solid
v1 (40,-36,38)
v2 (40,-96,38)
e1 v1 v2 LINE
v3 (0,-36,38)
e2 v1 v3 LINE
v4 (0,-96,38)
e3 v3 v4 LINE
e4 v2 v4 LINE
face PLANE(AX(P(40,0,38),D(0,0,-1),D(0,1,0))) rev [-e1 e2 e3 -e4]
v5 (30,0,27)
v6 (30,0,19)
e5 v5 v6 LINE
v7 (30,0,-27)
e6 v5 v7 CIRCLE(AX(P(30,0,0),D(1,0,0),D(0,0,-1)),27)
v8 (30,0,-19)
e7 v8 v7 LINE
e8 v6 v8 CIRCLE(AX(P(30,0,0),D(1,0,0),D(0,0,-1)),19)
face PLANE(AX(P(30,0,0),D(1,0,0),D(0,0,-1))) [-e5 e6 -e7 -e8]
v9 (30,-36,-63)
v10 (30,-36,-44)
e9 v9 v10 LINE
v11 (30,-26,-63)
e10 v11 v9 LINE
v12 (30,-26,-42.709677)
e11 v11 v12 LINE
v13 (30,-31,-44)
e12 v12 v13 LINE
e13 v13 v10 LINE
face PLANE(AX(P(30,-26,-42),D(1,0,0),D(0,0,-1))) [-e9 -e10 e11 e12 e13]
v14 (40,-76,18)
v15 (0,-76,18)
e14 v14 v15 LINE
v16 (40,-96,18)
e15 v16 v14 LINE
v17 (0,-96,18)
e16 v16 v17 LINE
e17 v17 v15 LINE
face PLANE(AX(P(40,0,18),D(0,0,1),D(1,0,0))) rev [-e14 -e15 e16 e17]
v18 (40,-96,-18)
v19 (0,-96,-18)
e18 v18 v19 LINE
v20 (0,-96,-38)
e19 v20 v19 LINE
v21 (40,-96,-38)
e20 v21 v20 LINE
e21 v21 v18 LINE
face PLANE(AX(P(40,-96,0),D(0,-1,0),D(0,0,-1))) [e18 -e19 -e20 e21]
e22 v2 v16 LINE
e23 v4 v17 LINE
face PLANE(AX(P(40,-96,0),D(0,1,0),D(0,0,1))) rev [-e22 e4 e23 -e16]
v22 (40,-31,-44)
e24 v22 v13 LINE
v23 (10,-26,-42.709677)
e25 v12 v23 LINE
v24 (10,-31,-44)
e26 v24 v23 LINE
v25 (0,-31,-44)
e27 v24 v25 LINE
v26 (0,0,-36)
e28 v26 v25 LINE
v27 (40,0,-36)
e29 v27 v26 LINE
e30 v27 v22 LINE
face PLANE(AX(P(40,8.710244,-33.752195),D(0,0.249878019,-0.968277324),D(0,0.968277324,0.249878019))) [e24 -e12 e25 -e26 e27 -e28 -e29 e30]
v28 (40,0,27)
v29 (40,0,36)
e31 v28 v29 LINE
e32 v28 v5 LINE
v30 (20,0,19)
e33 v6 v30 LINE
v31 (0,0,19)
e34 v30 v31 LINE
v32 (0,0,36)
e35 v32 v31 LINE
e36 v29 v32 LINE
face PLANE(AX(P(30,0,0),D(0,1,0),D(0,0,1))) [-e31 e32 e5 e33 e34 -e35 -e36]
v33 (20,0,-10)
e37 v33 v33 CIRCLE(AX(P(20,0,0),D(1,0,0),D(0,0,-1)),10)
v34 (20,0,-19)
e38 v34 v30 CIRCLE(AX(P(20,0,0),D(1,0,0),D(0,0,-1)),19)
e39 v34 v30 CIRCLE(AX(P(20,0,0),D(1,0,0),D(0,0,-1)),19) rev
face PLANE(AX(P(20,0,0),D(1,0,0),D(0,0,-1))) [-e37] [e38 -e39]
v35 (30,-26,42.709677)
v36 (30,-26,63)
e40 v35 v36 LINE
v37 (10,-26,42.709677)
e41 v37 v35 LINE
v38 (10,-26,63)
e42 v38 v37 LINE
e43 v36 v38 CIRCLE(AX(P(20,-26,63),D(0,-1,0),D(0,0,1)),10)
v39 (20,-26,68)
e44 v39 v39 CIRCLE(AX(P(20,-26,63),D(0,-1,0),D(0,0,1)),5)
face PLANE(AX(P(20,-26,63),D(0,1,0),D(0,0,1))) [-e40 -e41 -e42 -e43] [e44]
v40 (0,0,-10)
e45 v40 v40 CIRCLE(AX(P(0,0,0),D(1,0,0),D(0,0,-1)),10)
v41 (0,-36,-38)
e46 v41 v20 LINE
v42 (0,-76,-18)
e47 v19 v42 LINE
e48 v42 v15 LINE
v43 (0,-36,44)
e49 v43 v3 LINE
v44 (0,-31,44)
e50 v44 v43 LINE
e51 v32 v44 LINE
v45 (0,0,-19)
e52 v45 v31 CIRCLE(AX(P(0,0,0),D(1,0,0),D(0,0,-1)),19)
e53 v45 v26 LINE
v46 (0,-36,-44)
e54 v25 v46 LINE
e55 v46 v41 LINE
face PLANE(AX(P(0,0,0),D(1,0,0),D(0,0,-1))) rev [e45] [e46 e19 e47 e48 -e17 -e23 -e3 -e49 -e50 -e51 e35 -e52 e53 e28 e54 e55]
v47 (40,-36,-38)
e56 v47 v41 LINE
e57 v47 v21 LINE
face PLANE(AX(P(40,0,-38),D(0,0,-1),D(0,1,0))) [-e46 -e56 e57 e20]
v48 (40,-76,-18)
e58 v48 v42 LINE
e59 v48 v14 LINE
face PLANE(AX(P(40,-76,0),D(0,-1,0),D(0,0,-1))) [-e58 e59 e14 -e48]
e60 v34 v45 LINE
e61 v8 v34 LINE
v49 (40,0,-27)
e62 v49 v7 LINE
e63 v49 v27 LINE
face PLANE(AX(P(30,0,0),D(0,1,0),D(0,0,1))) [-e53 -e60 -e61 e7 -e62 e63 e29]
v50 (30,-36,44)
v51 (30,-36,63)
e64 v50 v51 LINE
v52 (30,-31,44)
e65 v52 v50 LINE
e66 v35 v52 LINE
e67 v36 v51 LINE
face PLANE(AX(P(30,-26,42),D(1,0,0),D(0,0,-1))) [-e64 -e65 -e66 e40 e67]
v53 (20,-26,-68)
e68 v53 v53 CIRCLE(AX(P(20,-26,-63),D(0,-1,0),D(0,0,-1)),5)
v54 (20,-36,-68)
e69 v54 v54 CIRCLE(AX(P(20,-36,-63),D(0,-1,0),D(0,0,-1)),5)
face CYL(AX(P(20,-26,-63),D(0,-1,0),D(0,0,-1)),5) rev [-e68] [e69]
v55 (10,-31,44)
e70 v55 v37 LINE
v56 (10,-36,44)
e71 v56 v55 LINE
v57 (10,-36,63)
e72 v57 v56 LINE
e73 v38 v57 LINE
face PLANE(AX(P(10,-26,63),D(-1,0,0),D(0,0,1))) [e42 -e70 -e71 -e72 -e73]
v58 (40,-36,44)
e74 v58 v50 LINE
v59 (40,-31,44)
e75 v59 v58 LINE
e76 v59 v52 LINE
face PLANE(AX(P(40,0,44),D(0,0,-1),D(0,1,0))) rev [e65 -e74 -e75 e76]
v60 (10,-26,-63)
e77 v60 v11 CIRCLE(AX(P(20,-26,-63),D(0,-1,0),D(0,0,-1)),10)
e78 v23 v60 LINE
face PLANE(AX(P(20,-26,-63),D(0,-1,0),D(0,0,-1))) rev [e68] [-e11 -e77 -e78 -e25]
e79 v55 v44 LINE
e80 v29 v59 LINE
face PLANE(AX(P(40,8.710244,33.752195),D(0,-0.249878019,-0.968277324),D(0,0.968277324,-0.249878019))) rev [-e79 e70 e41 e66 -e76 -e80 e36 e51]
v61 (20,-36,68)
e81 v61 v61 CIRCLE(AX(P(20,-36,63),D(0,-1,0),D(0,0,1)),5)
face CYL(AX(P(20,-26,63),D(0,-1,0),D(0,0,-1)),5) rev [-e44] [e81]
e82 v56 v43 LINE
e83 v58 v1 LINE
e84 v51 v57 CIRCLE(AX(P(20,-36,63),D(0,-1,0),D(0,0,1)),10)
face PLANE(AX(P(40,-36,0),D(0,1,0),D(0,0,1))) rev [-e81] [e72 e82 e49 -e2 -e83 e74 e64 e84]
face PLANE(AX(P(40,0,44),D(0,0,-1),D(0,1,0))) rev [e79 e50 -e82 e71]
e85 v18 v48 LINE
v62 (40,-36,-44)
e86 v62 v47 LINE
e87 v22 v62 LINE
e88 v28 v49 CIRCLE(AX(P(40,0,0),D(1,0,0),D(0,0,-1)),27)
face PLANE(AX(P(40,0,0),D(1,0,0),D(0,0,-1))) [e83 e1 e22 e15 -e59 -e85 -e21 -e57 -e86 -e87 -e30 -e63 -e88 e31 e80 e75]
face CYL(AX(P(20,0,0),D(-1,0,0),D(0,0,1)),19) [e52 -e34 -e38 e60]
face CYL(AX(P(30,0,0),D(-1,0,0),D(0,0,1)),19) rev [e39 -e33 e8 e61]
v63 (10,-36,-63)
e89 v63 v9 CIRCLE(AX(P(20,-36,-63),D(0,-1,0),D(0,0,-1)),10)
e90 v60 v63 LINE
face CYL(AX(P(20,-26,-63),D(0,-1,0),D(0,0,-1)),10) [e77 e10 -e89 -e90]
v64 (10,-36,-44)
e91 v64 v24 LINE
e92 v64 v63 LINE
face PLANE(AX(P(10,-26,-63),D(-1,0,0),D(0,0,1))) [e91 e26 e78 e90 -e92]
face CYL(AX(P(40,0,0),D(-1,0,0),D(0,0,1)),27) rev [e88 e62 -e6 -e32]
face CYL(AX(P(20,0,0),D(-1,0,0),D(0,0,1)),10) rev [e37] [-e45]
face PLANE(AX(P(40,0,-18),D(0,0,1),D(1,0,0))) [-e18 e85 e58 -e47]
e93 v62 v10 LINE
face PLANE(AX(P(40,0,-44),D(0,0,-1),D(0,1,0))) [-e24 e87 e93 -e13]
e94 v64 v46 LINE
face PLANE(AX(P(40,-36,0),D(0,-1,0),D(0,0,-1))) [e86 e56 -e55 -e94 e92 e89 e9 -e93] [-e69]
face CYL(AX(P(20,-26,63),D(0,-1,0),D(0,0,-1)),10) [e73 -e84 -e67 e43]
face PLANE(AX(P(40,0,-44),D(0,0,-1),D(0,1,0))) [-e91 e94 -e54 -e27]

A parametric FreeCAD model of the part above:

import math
import FreeCAD as App
import Part
import Sketcher
from FreeCAD import Vector
Q = App.Units.Quantity

doc = App.newDocument("Part")
body = doc.addObject("PartDesign::Body", "Body")

# Sketch on YZ plane
sketch1 = body.newObject("Sketcher::SketchObject", "Sketch")
sketch1.AttachmentSupport = (doc.getObject("YZ_Plane"), [""])
sketch1.MapMode = "FlatFace"
sketch1.addGeometry([
    Part.Circle(Vector(0, 0, 0), Vector(0, 0, 1), 19),
    Part.Circle(Vector(0, 0, 0), Vector(0, 0, 1), 10),
], False)
sketch1.addConstraint([
    Sketcher.Constraint("Coincident", 0, 3, -1, 1),
    Sketcher.Constraint("Coincident", 1, 3, -1, 1),
    Sketcher.Constraint("Diameter", 0, Q("38 mm")),
    Sketcher.Constraint("Diameter", 1, Q("20 mm")),
])
pad1 = body.newObject("PartDesign::Pad", "Pad")
pad1.Profile = sketch1
pad1.Length = 20

# Sketch on YZ plane
sketch2 = body.newObject("Sketcher::SketchObject", "Sketch001")
sketch2.AttachmentSupport = (doc.getObject("YZ_Plane"), [""])
sketch2.MapMode = "FlatFace"
sketch2.addGeometry([
    Part.ArcOfCircle(Part.Circle(Vector(0, 0, 0), Vector(0, 0, 1), 27), math.radians(90), math.radians(270)),
    Part.LineSegment(Vector(0, -27, 0), Vector(0, -19, 0)),
    Part.ArcOfCircle(Part.Circle(Vector(0, 0, 0), Vector(0, 0, 1), 19), math.radians(90), math.radians(270)),
    Part.LineSegment(Vector(0, 19, 0), Vector(0, 27, 0)),
], False)
sketch2.addConstraint([
    Sketcher.Constraint("Coincident", 0, 2, 1, 1),
    Sketcher.Constraint("Coincident", 1, 2, 2, 2),
    Sketcher.Constraint("Coincident", 2, 1, 3, 1),
    Sketcher.Constraint("Coincident", 3, 2, 0, 1),
    Sketcher.Constraint("Vertical", 1),
    Sketcher.Constraint("Vertical", 3),
    Sketcher.Constraint("Coincident", 0, 3, -1, 1),
    Sketcher.Constraint("Coincident", 2, 3, -1, 1),
    Sketcher.Constraint("PointOnObject", 0, 2, -2),
    Sketcher.Constraint("PointOnObject", 2, 1, -2),
    Sketcher.Constraint("Radius", 0, Q("27 mm")),
    Sketcher.Constraint("Radius", 2, Q("19 mm")),
])
pad2 = body.newObject("PartDesign::Pad", "Pad001")
pad2.Profile = sketch2
pad2.Length = 30

# Sketch on YZ plane
sketch3 = body.newObject("Sketcher::SketchObject", "Sketch002")
sketch3.AttachmentSupport = (doc.getObject("YZ_Plane"), [""])
sketch3.MapMode = "FlatFace"
sketch3.addGeometry([
    Part.ArcOfCircle(Part.Circle(Vector(0, 0, 0), Vector(0, 0, 1), 27), math.radians(90), math.radians(270)),  # 0
    Part.LineSegment(Vector(0, 27, 0), Vector(0, 36, 0)),  # 1
    Part.LineSegment(Vector(0, 36, 0), Vector(-31, 44, 0)),  # 2
    Part.LineSegment(Vector(-31, 44, 0), Vector(-36, 44, 0)),  # 3
    Part.LineSegment(Vector(-36, 44, 0), Vector(-36, 38, 0)),  # 4
    Part.LineSegment(Vector(-36, 38, 0), Vector(-96, 38, 0)),  # 5
    Part.LineSegment(Vector(-96, 38, 0), Vector(-96, 18, 0)),  # 6
    Part.LineSegment(Vector(-96, 18, 0), Vector(-76, 18, 0)),  # 7
    Part.LineSegment(Vector(-76, 18, 0), Vector(-76, -18, 0)),  # 8
    Part.LineSegment(Vector(-76, -18, 0), Vector(-96, -18, 0)),  # 9
    Part.LineSegment(Vector(-96, -18, 0), Vector(-96, -38, 0)),  # 10
    Part.LineSegment(Vector(-96, -38, 0), Vector(-36, -38, 0)),  # 11
    Part.LineSegment(Vector(-36, -38, 0), Vector(-36, -44, 0)),  # 12
    Part.LineSegment(Vector(-36, -44, 0), Vector(-31, -44, 0)),  # 13
    Part.LineSegment(Vector(-31, -44, 0), Vector(0, -36, 0)),  # 14
    Part.LineSegment(Vector(0, -36, 0), Vector(0, -27, 0)),  # 15
], False)
sketch3.addConstraint([
    Sketcher.Constraint("Coincident", 0, 1, 1, 1),
    Sketcher.Constraint("Coincident", 1, 2, 2, 1),
    Sketcher.Constraint("Coincident", 2, 2, 3, 1),
    Sketcher.Constraint("Coincident", 3, 2, 4, 1),
    Sketcher.Constraint("Coincident", 4, 2, 5, 1),
    Sketcher.Constraint("Coincident", 5, 2, 6, 1),
    Sketcher.Constraint("Coincident", 6, 2, 7, 1),
    Sketcher.Constraint("Coincident", 7, 2, 8, 1),
    Sketcher.Constraint("Coincident", 8, 2, 9, 1),
    Sketcher.Constraint("Coincident", 9, 2, 10, 1),
    Sketcher.Constraint("Coincident", 10, 2, 11, 1),
    Sketcher.Constraint("Coincident", 11, 2, 12, 1),
    Sketcher.Constraint("Coincident", 12, 2, 13, 1),
    Sketcher.Constraint("Coincident", 13, 2, 14, 1),
    Sketcher.Constraint("Coincident", 14, 2, 15, 1),
    Sketcher.Constraint("Coincident", 15, 2, 0, 2),
    Sketcher.Constraint("Vertical", 1),
    Sketcher.Constraint("Horizontal", 3),
    Sketcher.Constraint("Vertical", 4),
    Sketcher.Constraint("Horizontal", 5),
    Sketcher.Constraint("Vertical", 6),
    Sketcher.Constraint("Horizontal", 7),
    Sketcher.Constraint("Vertical", 8),
    Sketcher.Constraint("Horizontal", 9),
    Sketcher.Constraint("Vertical", 10),
    Sketcher.Constraint("Horizontal", 11),
    Sketcher.Constraint("Vertical", 12),
    Sketcher.Constraint("Horizontal", 13),
    Sketcher.Constraint("Vertical", 15),
    Sketcher.Constraint("Coincident", 0, 3, -1, 1),
    Sketcher.Constraint("Symmetric", 1, 2, 14, 2, -1, 1),
    Sketcher.Constraint("Symmetric", 6, 2, 9, 2, -1),
    Sketcher.Constraint("Symmetric", 4, 2, 11, 2, -1),
    Sketcher.Constraint("Symmetric", 2, 2, 13, 2, -1),
    Sketcher.Constraint("PointOnObject", 0, 1, -2),
    Sketcher.Constraint("Equal", 9, 6),
    Sketcher.Constraint("Radius", 0, Q("27 mm")),
    Sketcher.Constraint("DistanceX", 3, 2, 3, 1, Q("5 mm")),
    Sketcher.Constraint("DistanceX", 5, 2, 5, 1, Q("60 mm")),
    Sketcher.Constraint("DistanceX", 7, 1, 7, 2, Q("20 mm")),
    Sketcher.Constraint("DistanceY", 1, 1, 1, 2, Q("9 mm")),
    Sketcher.Constraint("DistanceY", 4, 2, 4, 1, Q("6 mm")),
    Sketcher.Constraint("DistanceY", 8, 2, 8, 1, Q("36 mm")),
    Sketcher.Constraint("DistanceX", 2, 2, -1, 1, Q("31 mm")),
])
pad3 = body.newObject("PartDesign::Pad", "Pad002")
pad3.Profile = sketch3
pad3.Length = 40

# Sketch on XZ plane
sketch4 = body.newObject("Sketcher::SketchObject", "Sketch003")
sketch4.AttachmentSupport = (doc.getObject("XZ_Plane"), [""])
sketch4.MapMode = "FlatFace"
sketch4.AttachmentOffset = App.Placement(Vector(0, 0, 36), App.Rotation())
sketch4.addGeometry([
    Part.LineSegment(Vector(10, -42, 0), Vector(10, -63, 0)),  # 0
    Part.ArcOfCircle(Part.Circle(Vector(20, -63, 0), Vector(0, 0, 1), 10), math.radians(180), math.radians(360)),  # 1
    Part.LineSegment(Vector(30, -63, 0), Vector(30, -42, 0)),  # 2
    Part.LineSegment(Vector(30, -42, 0), Vector(10, -42, 0)),  # 3
    Part.Circle(Vector(20, -63, 0), Vector(0, 0, 1), 5),  # 4
    Part.LineSegment(Vector(30, 42, 0), Vector(30, 63, 0)),  # 5
    Part.ArcOfCircle(Part.Circle(Vector(20, 63, 0), Vector(0, 0, 1), 10), math.radians(0), math.radians(180)),  # 6
    Part.LineSegment(Vector(10, 63, 0), Vector(10, 42, 0)),  # 7
    Part.LineSegment(Vector(10, 42, 0), Vector(30, 42, 0)),  # 8
    Part.Circle(Vector(20, 63, 0), Vector(0, 0, 1), 5),  # 9
], False)
sketch4.addConstraint([
    Sketcher.Constraint("Tangent", 0, 2, 1, 1),
    Sketcher.Constraint("Tangent", 1, 2, 2, 1),
    Sketcher.Constraint("Coincident", 2, 2, 3, 1),
    Sketcher.Constraint("Coincident", 3, 2, 0, 1),
    Sketcher.Constraint("Tangent", 5, 2, 6, 1),
    Sketcher.Constraint("Tangent", 6, 2, 7, 1),
    Sketcher.Constraint("Coincident", 7, 2, 8, 1),
    Sketcher.Constraint("Coincident", 8, 2, 5, 1),
    Sketcher.Constraint("Vertical", 0),
    Sketcher.Constraint("Vertical", 2),
    Sketcher.Constraint("Horizontal", 3),
    Sketcher.Constraint("Vertical", 5),
    Sketcher.Constraint("Vertical", 7),
    Sketcher.Constraint("Horizontal", 8),
    Sketcher.Constraint("Coincident", 4, 3, 1, 3),
    Sketcher.Constraint("Coincident", 9, 3, 6, 3),
    Sketcher.Constraint("Equal", 1, 6),
    Sketcher.Constraint("Equal", 4, 9),
    Sketcher.Constraint("Symmetric", 1, 3, 6, 3, -1),
    Sketcher.Constraint("Equal", 2, 5),
    Sketcher.Constraint("Diameter", 4, Q("10 mm")),
    Sketcher.Constraint("Radius", 1, Q("10 mm")),
    Sketcher.Constraint("DistanceY", 0, 2, 0, 1, Q("21 mm")),
    Sketcher.Constraint("DistanceX", -1, 1, 1, 3, Q("20 mm")),
    Sketcher.Constraint("DistanceY", 1, 3, -1, 1, Q("63 mm")),
])
pad4 = body.newObject("PartDesign::Pad", "Pad003")
pad4.Profile = sketch4
pad4.Length = 10
pad4.Reversed = True

doc.recompute()
